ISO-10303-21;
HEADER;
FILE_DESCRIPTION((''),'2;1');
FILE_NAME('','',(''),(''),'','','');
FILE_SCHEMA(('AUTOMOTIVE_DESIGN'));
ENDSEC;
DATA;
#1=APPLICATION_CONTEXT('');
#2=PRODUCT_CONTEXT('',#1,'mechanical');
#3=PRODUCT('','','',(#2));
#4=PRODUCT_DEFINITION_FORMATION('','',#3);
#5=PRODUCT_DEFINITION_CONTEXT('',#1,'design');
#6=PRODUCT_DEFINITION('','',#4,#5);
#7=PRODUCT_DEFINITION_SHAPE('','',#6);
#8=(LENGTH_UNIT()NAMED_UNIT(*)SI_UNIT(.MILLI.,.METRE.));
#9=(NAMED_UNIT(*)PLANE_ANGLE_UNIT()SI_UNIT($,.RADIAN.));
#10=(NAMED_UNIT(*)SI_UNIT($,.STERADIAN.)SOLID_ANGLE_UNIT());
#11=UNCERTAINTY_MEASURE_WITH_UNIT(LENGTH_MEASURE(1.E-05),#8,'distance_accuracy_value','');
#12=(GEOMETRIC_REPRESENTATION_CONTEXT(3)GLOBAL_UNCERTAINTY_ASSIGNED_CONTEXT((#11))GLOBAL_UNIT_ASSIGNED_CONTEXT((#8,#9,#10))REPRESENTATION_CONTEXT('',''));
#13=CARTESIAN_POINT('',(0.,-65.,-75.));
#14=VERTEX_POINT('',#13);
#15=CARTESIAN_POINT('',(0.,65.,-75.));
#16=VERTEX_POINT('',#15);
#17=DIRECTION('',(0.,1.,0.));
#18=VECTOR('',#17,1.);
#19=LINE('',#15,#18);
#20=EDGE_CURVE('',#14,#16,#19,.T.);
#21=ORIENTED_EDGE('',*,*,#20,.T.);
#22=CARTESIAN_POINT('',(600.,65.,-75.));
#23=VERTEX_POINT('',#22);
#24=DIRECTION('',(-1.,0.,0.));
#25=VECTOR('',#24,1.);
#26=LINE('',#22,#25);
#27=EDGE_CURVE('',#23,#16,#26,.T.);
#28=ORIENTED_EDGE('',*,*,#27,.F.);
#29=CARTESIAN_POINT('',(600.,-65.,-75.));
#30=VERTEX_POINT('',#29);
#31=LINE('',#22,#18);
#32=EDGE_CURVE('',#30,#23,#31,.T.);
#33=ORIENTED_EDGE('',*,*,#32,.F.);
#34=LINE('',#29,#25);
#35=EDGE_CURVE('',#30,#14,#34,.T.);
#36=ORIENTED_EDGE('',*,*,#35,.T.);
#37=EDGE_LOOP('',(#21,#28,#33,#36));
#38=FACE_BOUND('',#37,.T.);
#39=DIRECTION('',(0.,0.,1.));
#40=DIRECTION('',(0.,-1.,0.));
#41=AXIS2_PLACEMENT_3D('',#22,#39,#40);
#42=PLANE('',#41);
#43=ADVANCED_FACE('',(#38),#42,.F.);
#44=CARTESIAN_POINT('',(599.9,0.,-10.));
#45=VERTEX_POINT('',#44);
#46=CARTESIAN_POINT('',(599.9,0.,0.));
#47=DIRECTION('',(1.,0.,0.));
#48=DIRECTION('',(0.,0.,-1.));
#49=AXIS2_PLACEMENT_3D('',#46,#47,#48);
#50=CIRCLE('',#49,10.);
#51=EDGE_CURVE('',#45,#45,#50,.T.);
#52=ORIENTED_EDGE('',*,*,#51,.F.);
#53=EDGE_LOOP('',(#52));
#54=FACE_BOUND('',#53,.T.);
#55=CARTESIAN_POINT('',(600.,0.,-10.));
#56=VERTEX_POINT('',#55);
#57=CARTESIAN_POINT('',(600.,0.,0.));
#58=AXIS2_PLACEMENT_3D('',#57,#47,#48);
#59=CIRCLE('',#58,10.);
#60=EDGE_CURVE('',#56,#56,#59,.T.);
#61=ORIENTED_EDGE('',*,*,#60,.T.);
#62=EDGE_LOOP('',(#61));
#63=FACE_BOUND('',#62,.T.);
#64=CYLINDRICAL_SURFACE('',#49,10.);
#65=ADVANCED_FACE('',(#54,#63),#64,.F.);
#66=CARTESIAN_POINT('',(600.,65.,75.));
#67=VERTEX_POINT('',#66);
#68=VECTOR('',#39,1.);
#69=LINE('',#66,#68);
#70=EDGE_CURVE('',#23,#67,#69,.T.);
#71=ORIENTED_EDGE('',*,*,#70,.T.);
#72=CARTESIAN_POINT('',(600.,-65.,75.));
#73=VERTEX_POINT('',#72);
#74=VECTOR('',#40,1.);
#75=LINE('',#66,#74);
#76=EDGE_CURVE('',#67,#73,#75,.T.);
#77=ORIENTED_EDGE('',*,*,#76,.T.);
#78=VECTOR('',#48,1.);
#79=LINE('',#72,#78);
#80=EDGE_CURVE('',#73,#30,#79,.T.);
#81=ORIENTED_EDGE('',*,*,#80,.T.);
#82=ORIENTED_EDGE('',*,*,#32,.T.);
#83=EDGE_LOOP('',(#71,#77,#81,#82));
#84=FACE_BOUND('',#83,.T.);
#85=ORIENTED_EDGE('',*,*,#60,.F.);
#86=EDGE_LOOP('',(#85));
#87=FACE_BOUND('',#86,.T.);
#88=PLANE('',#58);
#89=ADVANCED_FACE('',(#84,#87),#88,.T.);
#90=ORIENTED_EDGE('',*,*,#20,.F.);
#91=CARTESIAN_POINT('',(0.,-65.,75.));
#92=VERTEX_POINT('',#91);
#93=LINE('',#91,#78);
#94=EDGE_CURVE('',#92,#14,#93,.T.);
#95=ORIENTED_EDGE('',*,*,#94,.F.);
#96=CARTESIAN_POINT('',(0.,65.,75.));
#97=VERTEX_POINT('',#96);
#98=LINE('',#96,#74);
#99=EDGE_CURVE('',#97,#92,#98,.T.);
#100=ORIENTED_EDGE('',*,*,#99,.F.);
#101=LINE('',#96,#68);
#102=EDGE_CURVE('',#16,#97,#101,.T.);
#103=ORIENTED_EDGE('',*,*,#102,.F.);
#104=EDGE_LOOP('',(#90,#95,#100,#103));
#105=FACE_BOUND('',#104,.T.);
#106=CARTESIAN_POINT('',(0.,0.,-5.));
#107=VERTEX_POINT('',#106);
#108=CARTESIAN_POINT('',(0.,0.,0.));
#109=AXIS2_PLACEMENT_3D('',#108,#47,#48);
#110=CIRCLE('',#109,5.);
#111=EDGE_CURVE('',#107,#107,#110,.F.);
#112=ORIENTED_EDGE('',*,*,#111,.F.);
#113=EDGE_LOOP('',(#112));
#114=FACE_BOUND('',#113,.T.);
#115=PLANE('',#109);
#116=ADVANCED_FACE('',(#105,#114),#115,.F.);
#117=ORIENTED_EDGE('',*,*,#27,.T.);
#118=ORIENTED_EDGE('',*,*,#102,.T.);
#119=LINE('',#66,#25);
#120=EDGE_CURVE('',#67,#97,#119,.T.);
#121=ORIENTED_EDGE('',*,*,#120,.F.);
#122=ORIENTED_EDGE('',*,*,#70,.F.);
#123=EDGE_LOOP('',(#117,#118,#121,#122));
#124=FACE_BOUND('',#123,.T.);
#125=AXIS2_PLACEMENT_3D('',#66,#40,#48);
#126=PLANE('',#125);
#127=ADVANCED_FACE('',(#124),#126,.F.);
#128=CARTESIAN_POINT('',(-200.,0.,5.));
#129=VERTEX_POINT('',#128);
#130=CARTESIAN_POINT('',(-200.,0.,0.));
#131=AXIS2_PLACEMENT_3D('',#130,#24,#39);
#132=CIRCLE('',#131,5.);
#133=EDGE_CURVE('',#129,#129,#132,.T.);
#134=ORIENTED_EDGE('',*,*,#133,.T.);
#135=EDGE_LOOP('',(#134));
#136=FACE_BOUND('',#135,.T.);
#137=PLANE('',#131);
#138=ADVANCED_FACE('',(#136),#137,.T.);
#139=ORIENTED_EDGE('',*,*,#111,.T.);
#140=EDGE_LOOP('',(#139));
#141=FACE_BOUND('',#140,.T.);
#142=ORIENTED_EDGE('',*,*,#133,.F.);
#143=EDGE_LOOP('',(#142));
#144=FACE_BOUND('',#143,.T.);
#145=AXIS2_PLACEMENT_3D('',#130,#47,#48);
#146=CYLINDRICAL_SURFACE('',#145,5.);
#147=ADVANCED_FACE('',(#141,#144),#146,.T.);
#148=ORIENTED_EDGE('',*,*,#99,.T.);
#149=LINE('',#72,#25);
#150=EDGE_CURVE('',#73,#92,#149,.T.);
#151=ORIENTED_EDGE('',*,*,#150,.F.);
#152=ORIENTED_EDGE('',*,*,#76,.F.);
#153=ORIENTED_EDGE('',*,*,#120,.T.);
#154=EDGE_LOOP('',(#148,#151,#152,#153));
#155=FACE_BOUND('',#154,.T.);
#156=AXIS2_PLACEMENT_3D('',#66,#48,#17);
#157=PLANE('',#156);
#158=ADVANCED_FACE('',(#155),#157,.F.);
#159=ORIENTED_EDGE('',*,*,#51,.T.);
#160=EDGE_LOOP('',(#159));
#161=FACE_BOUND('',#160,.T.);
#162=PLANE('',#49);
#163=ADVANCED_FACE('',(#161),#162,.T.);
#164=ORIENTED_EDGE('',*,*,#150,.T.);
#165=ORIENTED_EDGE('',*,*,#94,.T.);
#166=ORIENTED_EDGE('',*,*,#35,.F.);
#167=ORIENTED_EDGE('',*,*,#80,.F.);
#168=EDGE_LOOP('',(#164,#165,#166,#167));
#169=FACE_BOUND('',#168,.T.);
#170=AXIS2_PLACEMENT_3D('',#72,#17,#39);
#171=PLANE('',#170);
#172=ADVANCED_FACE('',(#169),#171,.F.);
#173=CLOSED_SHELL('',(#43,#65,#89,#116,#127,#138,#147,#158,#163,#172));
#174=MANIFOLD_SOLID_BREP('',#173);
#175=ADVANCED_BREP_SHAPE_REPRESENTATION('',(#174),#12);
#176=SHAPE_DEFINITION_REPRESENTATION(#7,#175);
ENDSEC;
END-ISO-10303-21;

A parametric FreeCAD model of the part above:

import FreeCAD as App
import Part
import Sketcher

V = App.Vector
Q = App.Units.Quantity

doc = App.newDocument("Part")
params = doc.addObject("Spreadsheet::Sheet", "Params")
for row, (alias, value) in enumerate([
    ("sketch1_width", "130 mm"),
    ("sketch1_height", "150 mm"),
    ("pad1_length", "600 mm"),
    ("sketch2_diameter", "10 mm"),
    ("pad2_length", "200 mm"),
    ("sketch3_diameter", "20 mm"),
    ("pocket1_length", "0.1 mm"),
], start=1):
    params.set(f"A{row}", alias)
    params.set(f"B{row}", "=" + value)
    params.setAlias(f"B{row}", alias)

body = doc.addObject("PartDesign::Body", "Body")

sketch1 = body.newObject("Sketcher::SketchObject", "Sketch")
sketch1.AttachmentSupport = (doc.getObject("YZ_Plane"), [""])
sketch1.MapMode = "FlatFace"
sketch1.addGeometry([
    Part.LineSegment(V(65, 75, 0), V(-65, 75, 0)),
    Part.LineSegment(V(-65, 75, 0), V(-65, -75, 0)),
    Part.LineSegment(V(-65, -75, 0), V(65, -75, 0)),
    Part.LineSegment(V(65, -75, 0), V(65, 75, 0)),
], False)
sketch1.addConstraint([
    Sketcher.Constraint("Coincident", 0, 2, 1, 1),
    Sketcher.Constraint("Coincident", 1, 2, 2, 1),
    Sketcher.Constraint("Coincident", 2, 2, 3, 1),
    Sketcher.Constraint("Coincident", 3, 2, 0, 1),
    Sketcher.Constraint("Horizontal", 0),
    Sketcher.Constraint("Vertical", 1),
    Sketcher.Constraint("Horizontal", 2),
    Sketcher.Constraint("Vertical", 3),
    Sketcher.Constraint("Symmetric", 0, 2, 2, 2, -1, 1),
    Sketcher.Constraint("DistanceX", 0, 2, 0, 1, Q("130 mm")),
    Sketcher.Constraint("DistanceY", 1, 2, 1, 1, Q("150 mm")),
])
sketch1.setExpression("Constraints[9]", "Params.sketch1_width")
sketch1.setExpression("Constraints[10]", "Params.sketch1_height")
pad1 = body.newObject("PartDesign::Pad", "Pad")
pad1.Profile = sketch1
pad1.setExpression("Length", "Params.pad1_length")

sketch2 = body.newObject("Sketcher::SketchObject", "Sketch001")
sketch2.AttachmentSupport = (doc.getObject("YZ_Plane"), [""])
sketch2.MapMode = "FlatFace"
sketch2.addGeometry(Part.Circle(V(0, 0, 0), V(0, 0, 1), 5), False)
sketch2.addConstraint([
    Sketcher.Constraint("Coincident", 0, 3, -1, 1),
    Sketcher.Constraint("Diameter", 0, Q("10 mm")),
])
sketch2.setExpression("Constraints[1]", "Params.sketch2_diameter")
pad2 = body.newObject("PartDesign::Pad", "Pad001")
pad2.Profile = sketch2
pad2.setExpression("Length", "Params.pad2_length")
pad2.Reversed = True

sketch3 = body.newObject("Sketcher::SketchObject", "Sketch002")
sketch3.AttachmentSupport = (doc.getObject("YZ_Plane"), [""])
sketch3.MapMode = "FlatFace"
sketch3.AttachmentOffset = App.Placement(V(0, 0, 600), App.Rotation())
sketch3.addGeometry(Part.Circle(V(0, 0, 0), V(0, 0, 1), 10), False)
sketch3.addConstraint([
    Sketcher.Constraint("Coincident", 0, 3, -1, 1),
    Sketcher.Constraint("Diameter", 0, Q("20 mm")),
])
sketch3.setExpression("Constraints[1]", "Params.sketch3_diameter")
pocket1 = body.newObject("PartDesign::Pocket", "Pocket")
pocket1.Profile = sketch3
pocket1.setExpression("Length", "Params.pocket1_length")

doc.recompute()
